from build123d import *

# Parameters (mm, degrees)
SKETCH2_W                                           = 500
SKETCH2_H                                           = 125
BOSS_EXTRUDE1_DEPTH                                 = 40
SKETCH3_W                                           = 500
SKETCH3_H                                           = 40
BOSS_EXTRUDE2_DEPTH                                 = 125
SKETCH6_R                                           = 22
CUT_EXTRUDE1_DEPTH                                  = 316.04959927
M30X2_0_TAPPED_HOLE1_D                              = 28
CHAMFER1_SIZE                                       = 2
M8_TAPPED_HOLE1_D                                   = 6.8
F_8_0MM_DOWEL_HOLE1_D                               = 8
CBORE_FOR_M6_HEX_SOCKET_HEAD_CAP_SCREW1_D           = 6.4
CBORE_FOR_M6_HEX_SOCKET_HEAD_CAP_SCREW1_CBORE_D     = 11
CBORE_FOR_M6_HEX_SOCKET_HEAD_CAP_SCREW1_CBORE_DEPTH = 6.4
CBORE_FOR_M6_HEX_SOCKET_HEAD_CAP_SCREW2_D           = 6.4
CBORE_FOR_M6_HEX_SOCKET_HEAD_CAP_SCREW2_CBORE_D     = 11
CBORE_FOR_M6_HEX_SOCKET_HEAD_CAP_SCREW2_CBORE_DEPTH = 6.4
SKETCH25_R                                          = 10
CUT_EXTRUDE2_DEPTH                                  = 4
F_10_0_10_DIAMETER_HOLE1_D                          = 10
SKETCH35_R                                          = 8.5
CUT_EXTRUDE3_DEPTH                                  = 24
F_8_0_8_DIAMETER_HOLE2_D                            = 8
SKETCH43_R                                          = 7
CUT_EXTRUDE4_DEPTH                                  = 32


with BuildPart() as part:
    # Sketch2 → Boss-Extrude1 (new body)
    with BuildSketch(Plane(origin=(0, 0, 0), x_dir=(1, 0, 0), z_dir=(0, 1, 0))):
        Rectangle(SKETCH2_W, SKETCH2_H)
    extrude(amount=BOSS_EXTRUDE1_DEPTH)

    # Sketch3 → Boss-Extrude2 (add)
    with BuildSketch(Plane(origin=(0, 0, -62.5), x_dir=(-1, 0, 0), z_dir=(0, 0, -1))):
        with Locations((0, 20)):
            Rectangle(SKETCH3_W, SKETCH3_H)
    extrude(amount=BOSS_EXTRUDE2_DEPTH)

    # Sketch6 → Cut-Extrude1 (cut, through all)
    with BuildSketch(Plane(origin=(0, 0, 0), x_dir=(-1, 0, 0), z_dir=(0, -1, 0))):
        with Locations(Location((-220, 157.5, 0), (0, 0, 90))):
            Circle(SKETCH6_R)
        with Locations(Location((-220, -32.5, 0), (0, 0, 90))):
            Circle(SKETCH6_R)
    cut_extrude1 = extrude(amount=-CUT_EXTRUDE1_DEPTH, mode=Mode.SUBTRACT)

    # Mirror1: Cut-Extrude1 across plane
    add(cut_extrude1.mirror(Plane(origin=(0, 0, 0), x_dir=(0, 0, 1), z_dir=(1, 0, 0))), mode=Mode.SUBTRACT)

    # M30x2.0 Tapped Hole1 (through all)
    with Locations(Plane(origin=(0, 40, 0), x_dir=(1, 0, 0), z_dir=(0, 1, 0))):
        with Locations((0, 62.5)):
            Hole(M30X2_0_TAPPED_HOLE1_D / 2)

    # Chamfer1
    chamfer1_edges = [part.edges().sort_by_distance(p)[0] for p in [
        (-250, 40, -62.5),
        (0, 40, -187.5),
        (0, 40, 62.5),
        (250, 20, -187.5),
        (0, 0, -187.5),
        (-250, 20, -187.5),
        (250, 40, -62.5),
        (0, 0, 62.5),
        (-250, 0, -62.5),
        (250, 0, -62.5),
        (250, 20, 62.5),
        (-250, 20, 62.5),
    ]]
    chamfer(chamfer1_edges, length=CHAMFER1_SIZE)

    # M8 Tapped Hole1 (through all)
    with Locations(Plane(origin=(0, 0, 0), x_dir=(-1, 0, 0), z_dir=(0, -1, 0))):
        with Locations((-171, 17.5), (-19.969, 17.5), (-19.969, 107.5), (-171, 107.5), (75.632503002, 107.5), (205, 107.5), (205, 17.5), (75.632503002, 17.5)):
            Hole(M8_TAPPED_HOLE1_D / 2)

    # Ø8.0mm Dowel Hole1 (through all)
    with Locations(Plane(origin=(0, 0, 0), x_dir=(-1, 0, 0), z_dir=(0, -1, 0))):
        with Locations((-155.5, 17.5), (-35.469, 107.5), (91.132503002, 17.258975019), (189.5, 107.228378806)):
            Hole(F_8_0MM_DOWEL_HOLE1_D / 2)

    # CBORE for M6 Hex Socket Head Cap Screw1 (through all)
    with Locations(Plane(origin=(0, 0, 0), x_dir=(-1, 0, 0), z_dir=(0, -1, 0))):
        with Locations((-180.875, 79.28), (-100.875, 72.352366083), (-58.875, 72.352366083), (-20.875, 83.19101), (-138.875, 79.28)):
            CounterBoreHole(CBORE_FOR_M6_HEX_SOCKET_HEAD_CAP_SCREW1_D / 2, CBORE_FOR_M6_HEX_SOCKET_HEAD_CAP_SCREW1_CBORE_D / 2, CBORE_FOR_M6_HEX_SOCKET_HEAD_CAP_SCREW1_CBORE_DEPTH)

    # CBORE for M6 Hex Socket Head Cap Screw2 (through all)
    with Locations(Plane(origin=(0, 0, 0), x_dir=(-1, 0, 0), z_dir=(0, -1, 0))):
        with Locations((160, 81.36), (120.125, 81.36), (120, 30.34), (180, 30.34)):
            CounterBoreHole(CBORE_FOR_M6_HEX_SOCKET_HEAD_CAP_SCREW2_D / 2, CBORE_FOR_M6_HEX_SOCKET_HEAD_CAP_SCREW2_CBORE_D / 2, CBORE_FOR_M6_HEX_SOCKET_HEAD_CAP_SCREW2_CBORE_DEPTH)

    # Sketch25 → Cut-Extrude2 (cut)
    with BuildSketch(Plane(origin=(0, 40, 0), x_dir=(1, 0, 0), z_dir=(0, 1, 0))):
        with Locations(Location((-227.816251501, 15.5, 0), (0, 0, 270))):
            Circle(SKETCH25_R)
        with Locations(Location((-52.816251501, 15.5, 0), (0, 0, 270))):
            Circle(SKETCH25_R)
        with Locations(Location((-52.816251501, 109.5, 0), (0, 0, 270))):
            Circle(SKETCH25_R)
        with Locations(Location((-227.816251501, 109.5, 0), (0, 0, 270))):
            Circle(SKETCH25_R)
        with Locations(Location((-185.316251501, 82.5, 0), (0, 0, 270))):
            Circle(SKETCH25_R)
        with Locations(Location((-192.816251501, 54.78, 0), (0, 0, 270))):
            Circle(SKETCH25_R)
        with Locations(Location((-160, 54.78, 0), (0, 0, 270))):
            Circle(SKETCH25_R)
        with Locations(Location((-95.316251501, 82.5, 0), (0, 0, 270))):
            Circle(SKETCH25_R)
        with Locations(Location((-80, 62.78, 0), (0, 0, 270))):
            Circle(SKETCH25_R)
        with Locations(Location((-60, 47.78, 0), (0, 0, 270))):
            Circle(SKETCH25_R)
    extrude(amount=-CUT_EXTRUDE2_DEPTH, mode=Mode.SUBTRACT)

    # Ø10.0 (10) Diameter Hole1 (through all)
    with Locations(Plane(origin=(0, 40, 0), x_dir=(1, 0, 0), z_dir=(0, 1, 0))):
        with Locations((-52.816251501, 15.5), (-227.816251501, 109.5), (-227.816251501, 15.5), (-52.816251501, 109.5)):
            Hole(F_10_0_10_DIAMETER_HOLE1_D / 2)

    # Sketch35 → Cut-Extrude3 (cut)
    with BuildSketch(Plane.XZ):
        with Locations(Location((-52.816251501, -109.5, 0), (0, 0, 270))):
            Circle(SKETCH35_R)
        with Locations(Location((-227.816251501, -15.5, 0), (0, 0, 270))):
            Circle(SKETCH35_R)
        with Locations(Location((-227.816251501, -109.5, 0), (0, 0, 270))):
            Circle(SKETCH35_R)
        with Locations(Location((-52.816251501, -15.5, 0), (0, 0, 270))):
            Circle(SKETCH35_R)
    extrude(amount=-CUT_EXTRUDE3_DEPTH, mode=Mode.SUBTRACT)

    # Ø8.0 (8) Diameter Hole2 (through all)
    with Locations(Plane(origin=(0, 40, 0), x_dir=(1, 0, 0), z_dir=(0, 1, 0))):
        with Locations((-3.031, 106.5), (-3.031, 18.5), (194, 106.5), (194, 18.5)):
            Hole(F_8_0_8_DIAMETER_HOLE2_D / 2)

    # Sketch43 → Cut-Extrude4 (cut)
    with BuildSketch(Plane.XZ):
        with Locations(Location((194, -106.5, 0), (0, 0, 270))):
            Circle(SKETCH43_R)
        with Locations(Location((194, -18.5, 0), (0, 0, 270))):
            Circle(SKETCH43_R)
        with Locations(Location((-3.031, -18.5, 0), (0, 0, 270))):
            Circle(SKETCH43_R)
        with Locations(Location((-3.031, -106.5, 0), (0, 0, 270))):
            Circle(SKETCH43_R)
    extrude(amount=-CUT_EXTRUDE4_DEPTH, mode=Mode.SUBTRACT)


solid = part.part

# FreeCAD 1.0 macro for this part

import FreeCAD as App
import Part
import Sketcher
from FreeCAD import Vector


def edges_at(feature, points):
    """Names of the edges that pass closest to the given points."""
    edges = feature.Shape.Edges
    near = lambda p: min(range(len(edges)), key=lambda i: edges[i].distToShape(Part.Vertex(*p))[0])
    return sorted({f"Edge{near(p) + 1}" for p in points})

doc = App.newDocument("Part")
body = doc.addObject("PartDesign::Body", "Body")

sketch1 = body.newObject("Sketcher::SketchObject", "Sketch")
sketch1.AttachmentSupport = (doc.getObject("XZ_Plane"), [""])
sketch1.MapMode = "FlatFace"
sketch1.addGeometry(Part.LineSegment(Vector(-250, -62, 0), Vector(-250, 62, 0)), False)
sketch1.addGeometry(Part.LineSegment(Vector(-250, 62, 0), Vector(250, 62, 0)), False)
sketch1.addGeometry(Part.LineSegment(Vector(250, 62, 0), Vector(250, -62, 0)), False)
sketch1.addGeometry(Part.LineSegment(Vector(250, -62, 0), Vector(-250, -62, 0)), False)
sketch1.addConstraint(Sketcher.Constraint("Coincident", 0, 2, 1, 1))
sketch1.addConstraint(Sketcher.Constraint("Coincident", 1, 2, 2, 1))
sketch1.addConstraint(Sketcher.Constraint("Coincident", 2, 2, 3, 1))
sketch1.addConstraint(Sketcher.Constraint("Coincident", 3, 2, 0, 1))
sketch1.addConstraint(Sketcher.Constraint("Vertical", 0))
sketch1.addConstraint(Sketcher.Constraint("Horizontal", 1))
sketch1.addConstraint(Sketcher.Constraint("Vertical", 2))
sketch1.addConstraint(Sketcher.Constraint("Horizontal", 3))
sketch1.addConstraint(Sketcher.Constraint("Symmetric", 0, 2, 2, 2, -1, 1))
sketch1.addConstraint(Sketcher.Constraint("DistanceX", 1, 1, 1, 2, 500.0))
sketch1.addConstraint(Sketcher.Constraint("DistanceY", 0, 1, 0, 2, 125.0))
pad1 = body.newObject("PartDesign::Pad", "Pad")
pad1.Profile = sketch1
pad1.Length = 40
pad1.Reversed = True

sketch2 = body.newObject("Sketcher::SketchObject", "Sketch001")
sketch2.AttachmentSupport = (doc.getObject("XY_Plane"), [""])
sketch2.MapMode = "FlatFace"
sketch2.AttachmentOffset = App.Placement(Vector(0, 0, -62.5), App.Rotation())
sketch2.addGeometry(Part.LineSegment(Vector(250, 40, 0), Vector(250, 0, 0)), False)
sketch2.addGeometry(Part.LineSegment(Vector(250, 0, 0), Vector(-250, 0, 0)), False)
sketch2.addGeometry(Part.LineSegment(Vector(-250, 0, 0), Vector(-250, 40, 0)), False)
sketch2.addGeometry(Part.LineSegment(Vector(-250, 40, 0), Vector(250, 40, 0)), False)
sketch2.addConstraint(Sketcher.Constraint("Coincident", 0, 2, 1, 1))
sketch2.addConstraint(Sketcher.Constraint("Coincident", 1, 2, 2, 1))
sketch2.addConstraint(Sketcher.Constraint("Coincident", 2, 2, 3, 1))
sketch2.addConstraint(Sketcher.Constraint("Coincident", 3, 2, 0, 1))
sketch2.addConstraint(Sketcher.Constraint("Vertical", 0))
sketch2.addConstraint(Sketcher.Constraint("Horizontal", 1))
sketch2.addConstraint(Sketcher.Constraint("Vertical", 2))
sketch2.addConstraint(Sketcher.Constraint("Horizontal", 3))
sketch2.addConstraint(Sketcher.Constraint("Symmetric", 0, 2, 1, 2, -1, 1))
sketch2.addConstraint(Sketcher.Constraint("DistanceX", 1, 2, 1, 1, 500.0))
sketch2.addConstraint(Sketcher.Constraint("DistanceY", 0, 2, 0, 1, 40.0))
pad2 = body.newObject("PartDesign::Pad", "Pad001")
pad2.Profile = sketch2
pad2.Length = 125
pad2.Reversed = True

sketch3 = body.newObject("Sketcher::SketchObject", "Sketch002")
sketch3.AttachmentSupport = (doc.getObject("XZ_Plane"), [""])
sketch3.MapMode = "FlatFace"
sketch3.addGeometry(Part.Circle(Vector(220, -158, 0), Vector(0, 0, 1), 22), False)
sketch3.addGeometry(Part.Circle(Vector(220, 32, 0), Vector(0, 0, 1), 22), False)
sketch3.addConstraint(Sketcher.Constraint("Equal", 0, 1))
sketch3.addConstraint(Sketcher.Constraint("Vertical", 0, 3, 1, 3))
sketch3.addConstraint(Sketcher.Constraint("Diameter", 0, 44.0))
sketch3.addConstraint(Sketcher.Constraint("DistanceX", -1, 1, 0, 3, 220.0))
sketch3.addConstraint(Sketcher.Constraint("DistanceY", 0, 3, 1, 3, 190.0))
sketch3.addConstraint(Sketcher.Constraint("DistanceY", 0, 3, -1, 1, 157.5))
pocket1 = body.newObject("PartDesign::Pocket", "Pocket")
pocket1.Profile = sketch3
pocket1.Type = "ThroughAll"
doc.recompute()

mirrored = body.newObject("PartDesign::Mirrored", "Mirrored")
mirrored.Originals = [pocket1]
mirrored.MirrorPlane = (doc.getObject("YZ_Plane"), [""])
body.Tip = mirrored

sketch4 = body.newObject("Sketcher::SketchObject", "Sketch003")
sketch4.AttachmentSupport = (doc.getObject("XZ_Plane"), [""])
sketch4.MapMode = "FlatFace"
sketch4.AttachmentOffset = App.Placement(Vector(0, 0, -40), App.Rotation())
sketch4.addGeometry(Part.Circle(Vector(0, -62, 0), Vector(0, 0, 1), 14), False)
sketch4.addConstraint(Sketcher.Constraint("PointOnObject", 0, 3, -2))
sketch4.addConstraint(Sketcher.Constraint("Diameter", 0, 28.0))
sketch4.addConstraint(Sketcher.Constraint("DistanceY", 0, 3, -1, 1, 62.5))
doc.recompute()
hole = body.newObject("PartDesign::Hole", "Hole")
hole.Profile = sketch4
hole.ThreadType = "None"
hole.Diameter = 28
hole.DepthType = "ThroughAll"
hole.Reversed = True
doc.recompute()

chamfer = body.newObject("PartDesign::Chamfer", "Chamfer")
chamfer.Base = (hole, edges_at(hole, [
    (-250, 40, -62.5),
    (0, 40, -187.5),
    (0, 40, 62.5),
    (250, 20, -187.5),
    (0, 0, -187.5),
    (-250, 20, -187.5),
    (250, 40, -62.5),
    (0, 0, 62.5),
    (-250, 0, -62.5),
    (250, 0, -62.5),
    (250, 20, 62.5),
    (-250, 20, 62.5),
]))
chamfer.Size = 2

sketch5 = body.newObject("Sketcher::SketchObject", "Sketch004")
sketch5.AttachmentSupport = (doc.getObject("XZ_Plane"), [""])
sketch5.MapMode = "FlatFace"
sketch5.addGeometry(Part.Circle(Vector(171, -17.5, 0), Vector(0, 0, 1), 3.4), False)
sketch5.addGeometry(Part.Circle(Vector(20, -17.5, 0), Vector(0, 0, 1), 3.4), False)
sketch5.addGeometry(Part.Circle(Vector(20, -107.5, 0), Vector(0, 0, 1), 3.4), False)
sketch5.addGeometry(Part.Circle(Vector(171, -107.5, 0), Vector(0, 0, 1), 3.4), False)
sketch5.addGeometry(Part.Circle(Vector(-75.6, -107.5, 0), Vector(0, 0, 1), 3.4), False)
sketch5.addGeometry(Part.Circle(Vector(-205, -107.5, 0), Vector(0, 0, 1), 3.4), False)
sketch5.addGeometry(Part.Circle(Vector(-205, -17.5, 0), Vector(0, 0, 1), 3.4), False)
sketch5.addGeometry(Part.Circle(Vector(-75.6, -17.5, 0), Vector(0, 0, 1), 3.4), False)
sketch5.addConstraint(Sketcher.Constraint("Equal", 0, 1))
sketch5.addConstraint(Sketcher.Constraint("Equal", 1, 2))
sketch5.addConstraint(Sketcher.Constraint("Equal", 2, 3))
sketch5.addConstraint(Sketcher.Constraint("Equal", 3, 4))
sketch5.addConstraint(Sketcher.Constraint("Equal", 4, 5))
sketch5.addConstraint(Sketcher.Constraint("Equal", 5, 6))
sketch5.addConstraint(Sketcher.Constraint("Equal", 6, 7))
sketch5.addConstraint(Sketcher.Constraint("Horizontal", 0, 3, 1, 3))
sketch5.addConstraint(Sketcher.Constraint("Horizontal", 2, 3, 3, 3))
sketch5.addConstraint(Sketcher.Constraint("Horizontal", 3, 3, 4, 3))
sketch5.addConstraint(Sketcher.Constraint("Horizontal", 4, 3, 5, 3))
sketch5.addConstraint(Sketcher.Constraint("Horizontal", 1, 3, 6, 3))
sketch5.addConstraint(Sketcher.Constraint("Horizontal", 6, 3, 7, 3))
sketch5.addConstraint(Sketcher.Constraint("Vertical", 1, 3, 2, 3))
sketch5.addConstraint(Sketcher.Constraint("Vertical", 0, 3, 3, 3))
sketch5.addConstraint(Sketcher.Constraint("Vertical", 5, 3, 6, 3))
sketch5.addConstraint(Sketcher.Constraint("Vertical", 4, 3, 7, 3))
sketch5.addConstraint(Sketcher.Constraint("Diameter", 0, 6.8))
sketch5.addConstraint(Sketcher.Constraint("DistanceX", -1, 1, 0, 3, 171.0))
sketch5.addConstraint(Sketcher.Constraint("DistanceX", 5, 3, -1, 1, 205.0))
sketch5.addConstraint(Sketcher.Constraint("DistanceY", 2, 3, 1, 3, 90.0))
sketch5.addConstraint(Sketcher.Constraint("DistanceY", 0, 3, -1, 1, 17.5))
sketch5.addConstraint(Sketcher.Constraint("DistanceX", -1, 1, 1, 3, 19.969))
sketch5.addConstraint(Sketcher.Constraint("DistanceX", 4, 3, -1, 1, 75.632503))
doc.recompute()
hole2 = body.newObject("PartDesign::Hole", "Hole001")
hole2.Profile = sketch5
hole2.ThreadType = "None"
hole2.Diameter = 6.8
hole2.DepthType = "ThroughAll"

sketch6 = body.newObject("Sketcher::SketchObject", "Sketch005")
sketch6.AttachmentSupport = (doc.getObject("XZ_Plane"), [""])
sketch6.MapMode = "FlatFace"
sketch6.addGeometry(Part.Circle(Vector(155.5, -17.5, 0), Vector(0, 0, 1), 4), False)
sketch6.addGeometry(Part.Circle(Vector(35.5, -107.5, 0), Vector(0, 0, 1), 4), False)
sketch6.addGeometry(Part.Circle(Vector(-91.1, -17.3, 0), Vector(0, 0, 1), 4), False)
sketch6.addGeometry(Part.Circle(Vector(-189.5, -107.2, 0), Vector(0, 0, 1), 4), False)
sketch6.addConstraint(Sketcher.Constraint("Equal", 0, 1))
sketch6.addConstraint(Sketcher.Constraint("Equal", 1, 2))
sketch6.addConstraint(Sketcher.Constraint("Equal", 2, 3))
sketch6.addConstraint(Sketcher.Constraint("Diameter", 0, 8.0))
sketch6.addConstraint(Sketcher.Constraint("DistanceY", 1, 3, 0, 3, 90.0))
sketch6.addConstraint(Sketcher.Constraint("DistanceX", 3, 3, 0, 3, 345.0))
sketch6.addConstraint(Sketcher.Constraint("DistanceX", -1, 1, 0, 3, 155.5))
sketch6.addConstraint(Sketcher.Constraint("DistanceY", 0, 3, -1, 1, 17.5))
sketch6.addConstraint(Sketcher.Constraint("DistanceX", -1, 1, 1, 3, 35.469))
sketch6.addConstraint(Sketcher.Constraint("DistanceY", 3, 3, -1, 1, 107.228379))
sketch6.addConstraint(Sketcher.Constraint("DistanceX", 2, 3, -1, 1, 91.132503))
sketch6.addConstraint(Sketcher.Constraint("DistanceY", 2, 3, -1, 1, 17.258975))
doc.recompute()
hole3 = body.newObject("PartDesign::Hole", "Hole002")
hole3.Profile = sketch6
hole3.ThreadType = "None"
hole3.Diameter = 8
hole3.DepthType = "ThroughAll"

sketch7 = body.newObject("Sketcher::SketchObject", "Sketch006")
sketch7.AttachmentSupport = (doc.getObject("XZ_Plane"), [""])
sketch7.MapMode = "FlatFace"
sketch7.addGeometry(Part.Circle(Vector(180.9, -79.3, 0), Vector(0, 0, 1), 3.2), False)
sketch7.addGeometry(Part.Circle(Vector(100.9, -72.4, 0), Vector(0, 0, 1), 3.2), False)
sketch7.addGeometry(Part.Circle(Vector(58.9, -72.4, 0), Vector(0, 0, 1), 3.2), False)
sketch7.addGeometry(Part.Circle(Vector(20.9, -83.2, 0), Vector(0, 0, 1), 3.2), False)
sketch7.addGeometry(Part.Circle(Vector(138.9, -79.3, 0), Vector(0, 0, 1), 3.2), False)
sketch7.addConstraint(Sketcher.Constraint("Equal", 0, 1))
sketch7.addConstraint(Sketcher.Constraint("Equal", 1, 2))
sketch7.addConstraint(Sketcher.Constraint("Equal", 2, 3))
sketch7.addConstraint(Sketcher.Constraint("Equal", 3, 4))
sketch7.addConstraint(Sketcher.Constraint("Horizontal", 1, 3, 2, 3))
sketch7.addConstraint(Sketcher.Constraint("Horizontal", 0, 3, 4, 3))
sketch7.addConstraint(Sketcher.Constraint("Diameter", 0, 6.4))
sketch7.addConstraint(Sketcher.Constraint("DistanceX", 1, 3, 0, 3, 80.0))
sketch7.addConstraint(Sketcher.Constraint("DistanceX", 2, 3, 1, 3, 42.0))
sketch7.addConstraint(Sketcher.Constraint("DistanceX", 3, 3, 2, 3, 38.0))
sketch7.addConstraint(Sketcher.Constraint("DistanceX", 1, 3, 4, 3, 38.0))
sketch7.addConstraint(Sketcher.Constraint("DistanceY", 0, 3, -1, 1, 79.28))
sketch7.addConstraint(Sketcher.Constraint("DistanceX", -1, 1, 0, 3, 180.875))
sketch7.addConstraint(Sketcher.Constraint("DistanceY", 3, 3, -1, 1, 83.19101))
sketch7.addConstraint(Sketcher.Constraint("DistanceY", 1, 3, -1, 1, 72.352366))
doc.recompute()
hole4 = body.newObject("PartDesign::Hole", "Hole003")
hole4.Profile = sketch7
hole4.ThreadType = "None"
hole4.Diameter = 6.4
hole4.DepthType = "ThroughAll"
hole4.HoleCutType = "Counterbore"
hole4.HoleCutDiameter = 11
hole4.HoleCutDepth = 6.4

sketch8 = body.newObject("Sketcher::SketchObject", "Sketch007")
sketch8.AttachmentSupport = (doc.getObject("XZ_Plane"), [""])
sketch8.MapMode = "FlatFace"
sketch8.addGeometry(Part.Circle(Vector(-160, -81.4, 0), Vector(0, 0, 1), 3.2), False)
sketch8.addGeometry(Part.Circle(Vector(-120.1, -81.4, 0), Vector(0, 0, 1), 3.2), False)
sketch8.addGeometry(Part.Circle(Vector(-120, -30.3, 0), Vector(0, 0, 1), 3.2), False)
sketch8.addGeometry(Part.Circle(Vector(-180, -30.3, 0), Vector(0, 0, 1), 3.2), False)
sketch8.addConstraint(Sketcher.Constraint("Equal", 0, 1))
sketch8.addConstraint(Sketcher.Constraint("Equal", 1, 2))
sketch8.addConstraint(Sketcher.Constraint("Equal", 2, 3))
sketch8.addConstraint(Sketcher.Constraint("Horizontal", 0, 3, 1, 3))
sketch8.addConstraint(Sketcher.Constraint("Horizontal", 2, 3, 3, 3))
sketch8.addConstraint(Sketcher.Constraint("Diameter", 0, 6.4))
sketch8.addConstraint(Sketcher.Constraint("DistanceX", 0, 3, -1, 1, 160.0))
sketch8.addConstraint(Sketcher.Constraint("DistanceX", 2, 3, -1, 1, 120.0))
sketch8.addConstraint(Sketcher.Constraint("DistanceX", 3, 3, -1, 1, 180.0))
sketch8.addConstraint(Sketcher.Constraint("DistanceY", 0, 3, -1, 1, 81.36))
sketch8.addConstraint(Sketcher.Constraint("DistanceY", 2, 3, -1, 1, 30.34))
sketch8.addConstraint(Sketcher.Constraint("DistanceX", 1, 3, -1, 1, 120.125))
doc.recompute()
hole5 = body.newObject("PartDesign::Hole", "Hole004")
hole5.Profile = sketch8
hole5.ThreadType = "None"
hole5.Diameter = 6.4
hole5.DepthType = "ThroughAll"
hole5.HoleCutType = "Counterbore"
hole5.HoleCutDiameter = 11
hole5.HoleCutDepth = 6.4

sketch9 = body.newObject("Sketcher::SketchObject", "Sketch008")
sketch9.AttachmentSupport = (doc.getObject("XZ_Plane"), [""])
sketch9.MapMode = "FlatFace"
sketch9.AttachmentOffset = App.Placement(Vector(0, 0, -40), App.Rotation())
sketch9.addGeometry(Part.Circle(Vector(-228, -16, 0), Vector(0, 0, 1), 10), False)
sketch9.addGeometry(Part.Circle(Vector(-53, -16, 0), Vector(0, 0, 1), 10), False)
sketch9.addGeometry(Part.Circle(Vector(-53, -110, 0), Vector(0, 0, 1), 10), False)
sketch9.addGeometry(Part.Circle(Vector(-228, -110, 0), Vector(0, 0, 1), 10), False)
sketch9.addGeometry(Part.Circle(Vector(-185, -82, 0), Vector(0, 0, 1), 10), False)
sketch9.addGeometry(Part.Circle(Vector(-193, -55, 0), Vector(0, 0, 1), 10), False)
sketch9.addGeometry(Part.Circle(Vector(-160, -55, 0), Vector(0, 0, 1), 10), False)
sketch9.addGeometry(Part.Circle(Vector(-95, -82, 0), Vector(0, 0, 1), 10), False)
sketch9.addGeometry(Part.Circle(Vector(-80, -63, 0), Vector(0, 0, 1), 10), False)
sketch9.addGeometry(Part.Circle(Vector(-60, -48, 0), Vector(0, 0, 1), 10), False)
sketch9.addConstraint(Sketcher.Constraint("Equal", 0, 1))
sketch9.addConstraint(Sketcher.Constraint("Equal", 1, 2))
sketch9.addConstraint(Sketcher.Constraint("Equal", 2, 3))
sketch9.addConstraint(Sketcher.Constraint("Equal", 3, 4))
sketch9.addConstraint(Sketcher.Constraint("Equal", 4, 5))
sketch9.addConstraint(Sketcher.Constraint("Equal", 5, 6))
sketch9.addConstraint(Sketcher.Constraint("Equal", 6, 7))
sketch9.addConstraint(Sketcher.Constraint("Equal", 7, 8))
sketch9.addConstraint(Sketcher.Constraint("Equal", 8, 9))
sketch9.addConstraint(Sketcher.Constraint("Horizontal", 0, 3, 1, 3))
sketch9.addConstraint(Sketcher.Constraint("Horizontal", 2, 3, 3, 3))
sketch9.addConstraint(Sketcher.Constraint("Horizontal", 5, 3, 6, 3))
sketch9.addConstraint(Sketcher.Constraint("Horizontal", 4, 3, 7, 3))
sketch9.addConstraint(Sketcher.Constraint("Vertical", 1, 3, 2, 3))
sketch9.addConstraint(Sketcher.Constraint("Vertical", 0, 3, 3, 3))
sketch9.addConstraint(Sketcher.Constraint("Diameter", 0, 20.0))
sketch9.addConstraint(Sketcher.Constraint("DistanceX", 6, 3, -1, 1, 160.0))
sketch9.addConstraint(Sketcher.Constraint("DistanceX", 8, 3, -1, 1, 80.0))
sketch9.addConstraint(Sketcher.Constraint("DistanceX", 9, 3, -1, 1, 60.0))
sketch9.addConstraint(Sketcher.Constraint("DistanceX", 0, 3, 1, 3, 175.0))
sketch9.addConstraint(Sketcher.Constraint("DistanceY", 2, 3, 1, 3, 94.0))
sketch9.addConstraint(Sketcher.Constraint("DistanceY", 3, 3, 4, 3, 27.0))
sketch9.addConstraint(Sketcher.Constraint("DistanceX", 0, 3, 5, 3, 35.0))
sketch9.addConstraint(Sketcher.Constraint("DistanceX", 4, 3, 7, 3, 90.0))
sketch9.addConstraint(Sketcher.Constraint("DistanceY", 8, 3, 6, 3, 8.0))
sketch9.addConstraint(Sketcher.Constraint("DistanceY", 8, 3, 9, 3, 15.0))
sketch9.addConstraint(Sketcher.Constraint("DistanceY", 0, 3, -1, 1, 15.5))
sketch9.addConstraint(Sketcher.Constraint("DistanceX", 3, 3, 4, 3, 42.5))
sketch9.addConstraint(Sketcher.Constraint("DistanceY", 5, 3, -1, 1, 54.78))
sketch9.addConstraint(Sketcher.Constraint("DistanceX", 0, 3, -1, 1, 227.816252))
pocket2 = body.newObject("PartDesign::Pocket", "Pocket001")
pocket2.Profile = sketch9
pocket2.Length = 4
pocket2.Reversed = True

sketch10 = body.newObject("Sketcher::SketchObject", "Sketch009")
sketch10.AttachmentSupport = (doc.getObject("XZ_Plane"), [""])
sketch10.MapMode = "FlatFace"
sketch10.AttachmentOffset = App.Placement(Vector(0, 0, -40), App.Rotation())
sketch10.addGeometry(Part.Circle(Vector(-53, -16, 0), Vector(0, 0, 1), 5), False)
sketch10.addGeometry(Part.Circle(Vector(-228, -110, 0), Vector(0, 0, 1), 5), False)
sketch10.addGeometry(Part.Circle(Vector(-228, -16, 0), Vector(0, 0, 1), 5), False)
sketch10.addGeometry(Part.Circle(Vector(-53, -110, 0), Vector(0, 0, 1), 5), False)
sketch10.addConstraint(Sketcher.Constraint("Equal", 0, 1))
sketch10.addConstraint(Sketcher.Constraint("Equal", 1, 2))
sketch10.addConstraint(Sketcher.Constraint("Equal", 2, 3))
sketch10.addConstraint(Sketcher.Constraint("Horizontal", 0, 3, 2, 3))
sketch10.addConstraint(Sketcher.Constraint("Horizontal", 1, 3, 3, 3))
sketch10.addConstraint(Sketcher.Constraint("Vertical", 1, 3, 2, 3))
sketch10.addConstraint(Sketcher.Constraint("Vertical", 0, 3, 3, 3))
sketch10.addConstraint(Sketcher.Constraint("Diameter", 0, 10.0))
sketch10.addConstraint(Sketcher.Constraint("DistanceX", 1, 3, 0, 3, 175.0))
sketch10.addConstraint(Sketcher.Constraint("DistanceY", 1, 3, 0, 3, 94.0))
sketch10.addConstraint(Sketcher.Constraint("DistanceY", 0, 3, -1, 1, 15.5))
sketch10.addConstraint(Sketcher.Constraint("DistanceX", 0, 3, -1, 1, 52.816252))
doc.recompute()
hole6 = body.newObject("PartDesign::Hole", "Hole005")
hole6.Profile = sketch10
hole6.ThreadType = "None"
hole6.Diameter = 10
hole6.DepthType = "ThroughAll"
hole6.Reversed = True

sketch11 = body.newObject("Sketcher::SketchObject", "Sketch010")
sketch11.AttachmentSupport = (doc.getObject("XZ_Plane"), [""])
sketch11.MapMode = "FlatFace"
sketch11.addGeometry(Part.Circle(Vector(-53, -110, 0), Vector(0, 0, 1), 8), False)
sketch11.addGeometry(Part.Circle(Vector(-228, -16, 0), Vector(0, 0, 1), 8), False)
sketch11.addGeometry(Part.Circle(Vector(-228, -110, 0), Vector(0, 0, 1), 8), False)
sketch11.addGeometry(Part.Circle(Vector(-53, -16, 0), Vector(0, 0, 1), 8), False)
sketch11.addConstraint(Sketcher.Constraint("Equal", 0, 1))
sketch11.addConstraint(Sketcher.Constraint("Equal", 1, 2))
sketch11.addConstraint(Sketcher.Constraint("Equal", 2, 3))
sketch11.addConstraint(Sketcher.Constraint("Horizontal", 0, 3, 2, 3))
sketch11.addConstraint(Sketcher.Constraint("Horizontal", 1, 3, 3, 3))
sketch11.addConstraint(Sketcher.Constraint("Vertical", 1, 3, 2, 3))
sketch11.addConstraint(Sketcher.Constraint("Vertical", 0, 3, 3, 3))
sketch11.addConstraint(Sketcher.Constraint("Diameter", 0, 17.0))
sketch11.addConstraint(Sketcher.Constraint("DistanceX", 1, 3, 0, 3, 175.0))
sketch11.addConstraint(Sketcher.Constraint("DistanceY", 0, 3, 1, 3, 94.0))
sketch11.addConstraint(Sketcher.Constraint("DistanceY", 0, 3, -1, 1, 109.5))
sketch11.addConstraint(Sketcher.Constraint("DistanceX", 0, 3, -1, 1, 52.816252))
pocket3 = body.newObject("PartDesign::Pocket", "Pocket002")
pocket3.Profile = sketch11
pocket3.Length = 24

sketch12 = body.newObject("Sketcher::SketchObject", "Sketch011")
sketch12.AttachmentSupport = (doc.getObject("XZ_Plane"), [""])
sketch12.MapMode = "FlatFace"
sketch12.AttachmentOffset = App.Placement(Vector(0, 0, -40), App.Rotation())
sketch12.addGeometry(Part.Circle(Vector(-3, -106.5, 0), Vector(0, 0, 1), 4), False)
sketch12.addGeometry(Part.Circle(Vector(-3, -18.5, 0), Vector(0, 0, 1), 4), False)
sketch12.addGeometry(Part.Circle(Vector(194, -106.5, 0), Vector(0, 0, 1), 4), False)
sketch12.addGeometry(Part.Circle(Vector(194, -18.5, 0), Vector(0, 0, 1), 4), False)
sketch12.addConstraint(Sketcher.Constraint("Equal", 0, 1))
sketch12.addConstraint(Sketcher.Constraint("Equal", 1, 2))
sketch12.addConstraint(Sketcher.Constraint("Equal", 2, 3))
sketch12.addConstraint(Sketcher.Constraint("Horizontal", 0, 3, 2, 3))
sketch12.addConstraint(Sketcher.Constraint("Horizontal", 1, 3, 3, 3))
sketch12.addConstraint(Sketcher.Constraint("Vertical", 0, 3, 1, 3))
sketch12.addConstraint(Sketcher.Constraint("Vertical", 2, 3, 3, 3))
sketch12.addConstraint(Sketcher.Constraint("Diameter", 0, 8.0))
sketch12.addConstraint(Sketcher.Constraint("DistanceX", -1, 1, 2, 3, 194.0))
sketch12.addConstraint(Sketcher.Constraint("DistanceY", 0, 3, 1, 3, 88.0))
sketch12.addConstraint(Sketcher.Constraint("DistanceY", 0, 3, -1, 1, 106.5))
sketch12.addConstraint(Sketcher.Constraint("DistanceX", 0, 3, -1, 1, 3.031))
doc.recompute()
hole7 = body.newObject("PartDesign::Hole", "Hole006")
hole7.Profile = sketch12
hole7.ThreadType = "None"
hole7.Diameter = 8
hole7.DepthType = "ThroughAll"
hole7.Reversed = True

sketch13 = body.newObject("Sketcher::SketchObject", "Sketch012")
sketch13.AttachmentSupport = (doc.getObject("XZ_Plane"), [""])
sketch13.MapMode = "FlatFace"
sketch13.addGeometry(Part.Circle(Vector(194, -106, 0), Vector(0, 0, 1), 7), False)
sketch13.addGeometry(Part.Circle(Vector(194, -18, 0), Vector(0, 0, 1), 7), False)
sketch13.addGeometry(Part.Circle(Vector(-3, -18, 0), Vector(0, 0, 1), 7), False)
sketch13.addGeometry(Part.Circle(Vector(-3, -106, 0), Vector(0, 0, 1), 7), False)
sketch13.addConstraint(Sketcher.Constraint("Equal", 0, 1))
sketch13.addConstraint(Sketcher.Constraint("Equal", 1, 2))
sketch13.addConstraint(Sketcher.Constraint("Equal", 2, 3))
sketch13.addConstraint(Sketcher.Constraint("Horizontal", 1, 3, 2, 3))
sketch13.addConstraint(Sketcher.Constraint("Horizontal", 0, 3, 3, 3))
sketch13.addConstraint(Sketcher.Constraint("Vertical", 0, 3, 1, 3))
sketch13.addConstraint(Sketcher.Constraint("Vertical", 2, 3, 3, 3))
sketch13.addConstraint(Sketcher.Constraint("Diameter", 0, 14.0))
sketch13.addConstraint(Sketcher.Constraint("DistanceX", -1, 1, 0, 3, 194.0))
sketch13.addConstraint(Sketcher.Constraint("DistanceY", 0, 3, 1, 3, 88.0))
sketch13.addConstraint(Sketcher.Constraint("DistanceY", 0, 3, -1, 1, 106.5))
sketch13.addConstraint(Sketcher.Constraint("DistanceX", 2, 3, -1, 1, 3.031))
pocket4 = body.newObject("PartDesign::Pocket", "Pocket003")
pocket4.Profile = sketch13
pocket4.Length = 32

doc.recompute()
